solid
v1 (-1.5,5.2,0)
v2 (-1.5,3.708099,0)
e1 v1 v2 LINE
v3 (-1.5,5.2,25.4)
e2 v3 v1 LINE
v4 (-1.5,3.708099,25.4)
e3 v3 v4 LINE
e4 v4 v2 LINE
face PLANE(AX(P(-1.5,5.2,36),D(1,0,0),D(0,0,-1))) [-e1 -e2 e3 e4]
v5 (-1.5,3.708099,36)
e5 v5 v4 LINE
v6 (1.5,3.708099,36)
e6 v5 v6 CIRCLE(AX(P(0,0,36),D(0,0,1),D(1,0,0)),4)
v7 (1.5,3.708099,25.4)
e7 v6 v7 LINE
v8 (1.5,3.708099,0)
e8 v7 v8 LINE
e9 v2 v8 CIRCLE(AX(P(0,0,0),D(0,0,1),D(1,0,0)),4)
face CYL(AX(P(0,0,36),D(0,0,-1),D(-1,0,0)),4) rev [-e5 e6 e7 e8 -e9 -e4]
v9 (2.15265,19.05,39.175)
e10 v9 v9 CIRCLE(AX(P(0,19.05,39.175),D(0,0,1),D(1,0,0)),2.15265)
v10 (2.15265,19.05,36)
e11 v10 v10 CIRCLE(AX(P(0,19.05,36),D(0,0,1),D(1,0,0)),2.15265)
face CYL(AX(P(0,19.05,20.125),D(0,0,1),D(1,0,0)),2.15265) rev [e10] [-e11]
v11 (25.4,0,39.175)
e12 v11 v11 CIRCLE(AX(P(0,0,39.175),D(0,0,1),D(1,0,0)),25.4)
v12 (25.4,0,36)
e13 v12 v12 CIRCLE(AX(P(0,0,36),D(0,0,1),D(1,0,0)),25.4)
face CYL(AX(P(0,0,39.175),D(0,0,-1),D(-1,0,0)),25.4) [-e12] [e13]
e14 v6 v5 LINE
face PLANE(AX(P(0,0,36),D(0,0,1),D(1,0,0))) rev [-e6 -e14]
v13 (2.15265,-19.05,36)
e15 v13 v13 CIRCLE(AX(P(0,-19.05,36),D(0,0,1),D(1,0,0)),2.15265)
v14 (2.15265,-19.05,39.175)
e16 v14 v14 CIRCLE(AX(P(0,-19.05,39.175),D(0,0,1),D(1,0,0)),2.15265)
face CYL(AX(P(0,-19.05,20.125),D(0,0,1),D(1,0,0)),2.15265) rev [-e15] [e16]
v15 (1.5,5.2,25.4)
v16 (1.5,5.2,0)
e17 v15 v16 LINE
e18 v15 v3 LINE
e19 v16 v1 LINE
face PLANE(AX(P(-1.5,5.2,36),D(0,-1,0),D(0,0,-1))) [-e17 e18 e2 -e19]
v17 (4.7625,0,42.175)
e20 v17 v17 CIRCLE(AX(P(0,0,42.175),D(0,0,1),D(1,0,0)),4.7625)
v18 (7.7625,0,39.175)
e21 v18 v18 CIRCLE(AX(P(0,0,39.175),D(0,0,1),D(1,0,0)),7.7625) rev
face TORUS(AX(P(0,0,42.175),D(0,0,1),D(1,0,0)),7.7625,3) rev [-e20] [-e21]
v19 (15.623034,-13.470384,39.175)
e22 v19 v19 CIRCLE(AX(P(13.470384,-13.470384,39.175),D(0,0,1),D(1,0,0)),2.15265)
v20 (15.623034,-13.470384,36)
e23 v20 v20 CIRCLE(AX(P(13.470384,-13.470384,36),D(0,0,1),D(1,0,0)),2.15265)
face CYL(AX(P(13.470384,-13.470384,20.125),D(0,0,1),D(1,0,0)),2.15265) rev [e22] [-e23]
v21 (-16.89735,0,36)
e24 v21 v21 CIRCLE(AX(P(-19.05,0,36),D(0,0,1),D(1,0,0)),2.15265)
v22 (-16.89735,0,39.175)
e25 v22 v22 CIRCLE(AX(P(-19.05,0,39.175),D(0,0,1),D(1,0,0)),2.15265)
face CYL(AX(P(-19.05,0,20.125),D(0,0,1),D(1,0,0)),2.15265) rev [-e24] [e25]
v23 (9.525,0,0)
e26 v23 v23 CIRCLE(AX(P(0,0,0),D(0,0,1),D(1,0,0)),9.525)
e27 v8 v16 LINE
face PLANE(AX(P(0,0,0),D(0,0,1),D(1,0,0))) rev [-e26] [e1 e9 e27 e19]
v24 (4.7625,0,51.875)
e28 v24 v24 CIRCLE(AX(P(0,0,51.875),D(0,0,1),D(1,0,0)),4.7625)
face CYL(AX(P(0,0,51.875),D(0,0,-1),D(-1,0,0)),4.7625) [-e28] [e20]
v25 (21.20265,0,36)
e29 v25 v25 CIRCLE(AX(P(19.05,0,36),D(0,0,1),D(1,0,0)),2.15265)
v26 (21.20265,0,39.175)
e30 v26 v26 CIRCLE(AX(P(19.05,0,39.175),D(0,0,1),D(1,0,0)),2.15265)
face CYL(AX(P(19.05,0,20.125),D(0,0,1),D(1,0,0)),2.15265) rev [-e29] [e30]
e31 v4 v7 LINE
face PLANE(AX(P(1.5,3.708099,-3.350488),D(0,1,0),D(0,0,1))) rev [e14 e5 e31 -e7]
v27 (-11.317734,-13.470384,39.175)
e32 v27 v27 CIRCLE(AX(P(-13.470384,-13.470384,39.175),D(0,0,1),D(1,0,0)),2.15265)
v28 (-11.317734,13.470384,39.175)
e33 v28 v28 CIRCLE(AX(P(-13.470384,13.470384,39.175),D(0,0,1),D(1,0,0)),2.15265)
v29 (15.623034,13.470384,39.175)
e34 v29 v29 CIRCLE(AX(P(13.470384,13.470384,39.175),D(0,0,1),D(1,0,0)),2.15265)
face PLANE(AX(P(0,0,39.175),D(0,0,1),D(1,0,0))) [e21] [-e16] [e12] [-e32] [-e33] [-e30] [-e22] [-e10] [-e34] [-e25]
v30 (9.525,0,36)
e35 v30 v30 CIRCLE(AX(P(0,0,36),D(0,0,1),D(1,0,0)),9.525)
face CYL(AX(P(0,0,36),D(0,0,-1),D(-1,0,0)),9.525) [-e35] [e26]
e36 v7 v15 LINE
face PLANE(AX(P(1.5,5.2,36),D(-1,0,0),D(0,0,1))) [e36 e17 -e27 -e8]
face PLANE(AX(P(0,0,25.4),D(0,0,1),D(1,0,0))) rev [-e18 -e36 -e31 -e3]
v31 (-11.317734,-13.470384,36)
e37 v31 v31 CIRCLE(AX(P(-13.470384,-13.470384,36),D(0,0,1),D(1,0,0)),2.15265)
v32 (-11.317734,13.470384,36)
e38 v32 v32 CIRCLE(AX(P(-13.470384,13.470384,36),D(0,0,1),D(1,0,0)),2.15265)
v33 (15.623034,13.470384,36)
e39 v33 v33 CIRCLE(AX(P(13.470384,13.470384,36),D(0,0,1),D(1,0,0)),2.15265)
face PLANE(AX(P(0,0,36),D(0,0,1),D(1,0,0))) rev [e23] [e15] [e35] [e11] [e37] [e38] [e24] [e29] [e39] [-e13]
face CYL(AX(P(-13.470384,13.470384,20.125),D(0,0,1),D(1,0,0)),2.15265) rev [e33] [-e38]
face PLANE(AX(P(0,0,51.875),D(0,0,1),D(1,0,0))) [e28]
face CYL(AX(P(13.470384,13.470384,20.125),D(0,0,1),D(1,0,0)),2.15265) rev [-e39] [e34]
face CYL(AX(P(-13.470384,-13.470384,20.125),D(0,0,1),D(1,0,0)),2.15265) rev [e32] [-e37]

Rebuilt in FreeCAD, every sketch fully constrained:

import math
import FreeCAD as App
import Part
import Sketcher
Q = App.Units.Quantity


def edges_at(feature, points):
    """Names of the edges that pass closest to the given points."""
    edges = feature.Shape.Edges
    near = lambda p: min(range(len(edges)), key=lambda i: edges[i].distToShape(Part.Vertex(*p))[0])
    return sorted({f"Edge{near(p) + 1}" for p in points})


def add_polygon(sketch, points):
    """Adds a closed chain of lines whose ends are joined by coincident constraints."""
    first, n = sketch.GeometryCount, len(points)
    for a, b in zip(points, points[1:] + points[:1]):
        sketch.addGeometry(Part.LineSegment(App.Vector(*a, 0), App.Vector(*b, 0)), False)
    for i in range(n):
        sketch.addConstraint(Sketcher.Constraint("Coincident", first + i, 2, first + (i + 1) % n, 1))

doc = App.newDocument("Part")
body = doc.addObject("PartDesign::Body", "Body")

# Sketch on XY plane
sketch1 = doc.addObject("Sketcher::SketchObject", "Sketch")
body.addObject(sketch1)
sketch1.AttachmentSupport = (doc.XY_Plane, [""])
sketch1.MapMode = "FlatFace"
sketch1.addGeometry([
    Part.Circle(App.Vector(0, 0, 0), App.Vector(0, 0, 1), 9.525),  # 0
    Part.LineSegment(App.Vector(-1.5, 3.708099, 0), App.Vector(-1.5, 5.2, 0)),  # 1
    Part.LineSegment(App.Vector(-1.5, 5.2, 0), App.Vector(1.5, 5.2, 0)),  # 2
    Part.LineSegment(App.Vector(1.5, 5.2, 0), App.Vector(1.5, 3.708099, 0)),  # 3
    Part.ArcOfCircle(Part.Circle(App.Vector(0, 0, 0), App.Vector(0, 0, 1), 4), math.radians(112.024313), math.radians(427.975687)),  # 4
], False)
sketch1.addConstraint([
    Sketcher.Constraint("Coincident", 1, 2, 2, 1),
    Sketcher.Constraint("Coincident", 2, 2, 3, 1),
    Sketcher.Constraint("Coincident", 3, 2, 4, 2),
    Sketcher.Constraint("Coincident", 4, 1, 1, 1),
    Sketcher.Constraint("Vertical", 1),
    Sketcher.Constraint("Horizontal", 2),
    Sketcher.Constraint("Vertical", 3),
    Sketcher.Constraint("Coincident", 0, 3, -1, 1),
    Sketcher.Constraint("Coincident", 4, 3, -1, 1),
    Sketcher.Constraint("Horizontal", 3, 2, 4, 1),
    Sketcher.Constraint("Diameter", 0, Q("0.75 in")),
    Sketcher.Constraint("Radius", 4, Q("4 mm")),
    Sketcher.Constraint("DistanceX", 2, 1, 2, 2, Q("3 mm")),
    Sketcher.Constraint("DistanceY", 1, 1, 1, 2, Q("1.491901 mm")),
])
pad1 = doc.addObject("PartDesign::Pad", "Pad")
body.addObject(pad1)
pad1.Profile = sketch1
pad1.Length = 36

# Sketch on XY plane
sketch2 = doc.addObject("Sketcher::SketchObject", "Sketch001")
body.addObject(sketch2)
sketch2.AttachmentSupport = (doc.XY_Plane, [""])
sketch2.MapMode = "FlatFace"
sketch2.AttachmentOffset = App.Placement(App.Vector(0, 0, 36), App.Rotation())
sketch2.addGeometry(Part.Circle(App.Vector(0, 0, 0), App.Vector(0, 0, 1), 25.4), False)
sketch2.addConstraint([
    Sketcher.Constraint("Coincident", 0, 3, -1, 1),
    Sketcher.Constraint("Diameter", 0, Q("2 in")),
])
pad2 = doc.addObject("PartDesign::Pad", "Pad001")
body.addObject(pad2)
pad2.Profile = sketch2
pad2.Length = Q("0.125 in")

# Sketch on XY plane
sketch3 = doc.addObject("Sketcher::SketchObject", "Sketch002")
body.addObject(sketch3)
sketch3.AttachmentSupport = (doc.XY_Plane, [""])
sketch3.MapMode = "FlatFace"
sketch3.AttachmentOffset = App.Placement(App.Vector(0, 0, 39.175), App.Rotation())
sketch3.addGeometry(Part.Circle(App.Vector(0, 0, 0), App.Vector(0, 0, 1), 4.7625), False)
sketch3.addConstraint([
    Sketcher.Constraint("Coincident", 0, 3, -1, 1),
    Sketcher.Constraint("Diameter", 0, Q("0.375 in")),
])
pad3 = doc.addObject("PartDesign::Pad", "Pad002")
body.addObject(pad3)
pad3.Profile = sketch3
pad3.Length = Q("0.5 in")

# Sketch on XY plane
sketch4 = doc.addObject("Sketcher::SketchObject", "Sketch003")
body.addObject(sketch4)
sketch4.AttachmentSupport = (doc.XY_Plane, [""])
sketch4.MapMode = "FlatFace"
sketch4.AttachmentOffset = App.Placement(App.Vector(0, 0, 39.175), App.Rotation())
sketch4.addGeometry([
    Part.Circle(App.Vector(0, 19.05, 0), App.Vector(0, 0, 1), 2.15265),  # 0
    Part.Circle(App.Vector(13.470384, 13.470384, 0), App.Vector(0, 0, 1), 2.15265),  # 1
    Part.Circle(App.Vector(19.05, 0, 0), App.Vector(0, 0, 1), 2.15265),  # 2
    Part.Circle(App.Vector(13.470384, -13.470384, 0), App.Vector(0, 0, 1), 2.15265),  # 3
    Part.Circle(App.Vector(-19.05, 0, 0), App.Vector(0, 0, 1), 2.15265),  # 4
    Part.Circle(App.Vector(0, -19.05, 0), App.Vector(0, 0, 1), 2.15265),  # 5
    Part.Circle(App.Vector(-13.470384, -13.470384, 0), App.Vector(0, 0, 1), 2.15265),  # 6
    Part.Circle(App.Vector(-13.470384, 13.470384, 0), App.Vector(0, 0, 1), 2.15265),  # 7
], False)
sketch4.addConstraint([
    Sketcher.Constraint("Equal", 0, 1),
    Sketcher.Constraint("Equal", 1, 2),
    Sketcher.Constraint("Equal", 2, 3),
    Sketcher.Constraint("Equal", 3, 4),
    Sketcher.Constraint("Equal", 4, 5),
    Sketcher.Constraint("Equal", 5, 6),
    Sketcher.Constraint("Equal", 6, 7),
    Sketcher.Constraint("Symmetric", 2, 3, 4, 3, -1, 1),
    Sketcher.Constraint("Symmetric", 0, 3, 5, 3, -1, 1),
    Sketcher.Constraint("Symmetric", 1, 3, 6, 3, -1, 1),
    Sketcher.Constraint("Symmetric", 3, 3, 7, 3, -1, 1),
    Sketcher.Constraint("Symmetric", 3, 3, 6, 3, -2),
    Sketcher.Constraint("PointOnObject", 0, 3, -2),
    Sketcher.Constraint("PointOnObject", 2, 3, -1),
    Sketcher.Constraint("Diameter", 0, Q("0.1695 in")),
    Sketcher.Constraint("DistanceX", 4, 3, 2, 3, Q("1.5 in")),
    Sketcher.Constraint("DistanceY", 5, 3, 0, 3, Q("1.5 in")),
    Sketcher.Constraint("DistanceY", 3, 3, 1, 3, Q("26.940768 mm")),
    Sketcher.Constraint("DistanceX", 6, 3, 3, 3, Q("26.940768 mm")),
])
pocket1 = doc.addObject("PartDesign::Pocket", "Pocket")
body.addObject(pocket1)
pocket1.Profile = sketch4
pocket1.Length = Q("0.75 in")
doc.recompute()

fillet = doc.addObject("PartDesign::Fillet", "Fillet")
body.addObject(fillet)
fillet.Base = (pocket1, edges_at(pocket1, [(-4.763, 0, 39.175)]))
fillet.Radius = 3

# Sketch on XY plane
sketch5 = doc.addObject("Sketcher::SketchObject", "Sketch004")
body.addObject(sketch5)
sketch5.AttachmentSupport = (doc.XY_Plane, [""])
sketch5.MapMode = "FlatFace"
sketch5.AttachmentOffset = App.Placement(App.Vector(0, 0, 36), App.Rotation())
add_polygon(sketch5, [(1.5, 5.2), (1.5, 3.708099), (-1.5, 3.708099), (-1.5, 5.2)])  # lines 0-3
sketch5.addConstraint([
    Sketcher.Constraint("Vertical", 0),
    Sketcher.Constraint("Horizontal", 1),
    Sketcher.Constraint("Vertical", 2),
    Sketcher.Constraint("Horizontal", 3),
    Sketcher.Constraint("DistanceX", 1, 2, 1, 1, Q("3 mm")),
    Sketcher.Constraint("DistanceY", 0, 2, 0, 1, Q("1.491901 mm")),
    Sketcher.Constraint("DistanceX", -1, 1, 0, 2, Q("1.5 mm")),
    Sketcher.Constraint("DistanceY", -1, 1, 0, 2, Q("3.708099 mm")),
])
pad4 = doc.addObject("PartDesign::Pad", "Pad003")
body.addObject(pad4)
pad4.Profile = sketch5
pad4.Length = 10.6
pad4.Reversed = True

doc.recompute()
